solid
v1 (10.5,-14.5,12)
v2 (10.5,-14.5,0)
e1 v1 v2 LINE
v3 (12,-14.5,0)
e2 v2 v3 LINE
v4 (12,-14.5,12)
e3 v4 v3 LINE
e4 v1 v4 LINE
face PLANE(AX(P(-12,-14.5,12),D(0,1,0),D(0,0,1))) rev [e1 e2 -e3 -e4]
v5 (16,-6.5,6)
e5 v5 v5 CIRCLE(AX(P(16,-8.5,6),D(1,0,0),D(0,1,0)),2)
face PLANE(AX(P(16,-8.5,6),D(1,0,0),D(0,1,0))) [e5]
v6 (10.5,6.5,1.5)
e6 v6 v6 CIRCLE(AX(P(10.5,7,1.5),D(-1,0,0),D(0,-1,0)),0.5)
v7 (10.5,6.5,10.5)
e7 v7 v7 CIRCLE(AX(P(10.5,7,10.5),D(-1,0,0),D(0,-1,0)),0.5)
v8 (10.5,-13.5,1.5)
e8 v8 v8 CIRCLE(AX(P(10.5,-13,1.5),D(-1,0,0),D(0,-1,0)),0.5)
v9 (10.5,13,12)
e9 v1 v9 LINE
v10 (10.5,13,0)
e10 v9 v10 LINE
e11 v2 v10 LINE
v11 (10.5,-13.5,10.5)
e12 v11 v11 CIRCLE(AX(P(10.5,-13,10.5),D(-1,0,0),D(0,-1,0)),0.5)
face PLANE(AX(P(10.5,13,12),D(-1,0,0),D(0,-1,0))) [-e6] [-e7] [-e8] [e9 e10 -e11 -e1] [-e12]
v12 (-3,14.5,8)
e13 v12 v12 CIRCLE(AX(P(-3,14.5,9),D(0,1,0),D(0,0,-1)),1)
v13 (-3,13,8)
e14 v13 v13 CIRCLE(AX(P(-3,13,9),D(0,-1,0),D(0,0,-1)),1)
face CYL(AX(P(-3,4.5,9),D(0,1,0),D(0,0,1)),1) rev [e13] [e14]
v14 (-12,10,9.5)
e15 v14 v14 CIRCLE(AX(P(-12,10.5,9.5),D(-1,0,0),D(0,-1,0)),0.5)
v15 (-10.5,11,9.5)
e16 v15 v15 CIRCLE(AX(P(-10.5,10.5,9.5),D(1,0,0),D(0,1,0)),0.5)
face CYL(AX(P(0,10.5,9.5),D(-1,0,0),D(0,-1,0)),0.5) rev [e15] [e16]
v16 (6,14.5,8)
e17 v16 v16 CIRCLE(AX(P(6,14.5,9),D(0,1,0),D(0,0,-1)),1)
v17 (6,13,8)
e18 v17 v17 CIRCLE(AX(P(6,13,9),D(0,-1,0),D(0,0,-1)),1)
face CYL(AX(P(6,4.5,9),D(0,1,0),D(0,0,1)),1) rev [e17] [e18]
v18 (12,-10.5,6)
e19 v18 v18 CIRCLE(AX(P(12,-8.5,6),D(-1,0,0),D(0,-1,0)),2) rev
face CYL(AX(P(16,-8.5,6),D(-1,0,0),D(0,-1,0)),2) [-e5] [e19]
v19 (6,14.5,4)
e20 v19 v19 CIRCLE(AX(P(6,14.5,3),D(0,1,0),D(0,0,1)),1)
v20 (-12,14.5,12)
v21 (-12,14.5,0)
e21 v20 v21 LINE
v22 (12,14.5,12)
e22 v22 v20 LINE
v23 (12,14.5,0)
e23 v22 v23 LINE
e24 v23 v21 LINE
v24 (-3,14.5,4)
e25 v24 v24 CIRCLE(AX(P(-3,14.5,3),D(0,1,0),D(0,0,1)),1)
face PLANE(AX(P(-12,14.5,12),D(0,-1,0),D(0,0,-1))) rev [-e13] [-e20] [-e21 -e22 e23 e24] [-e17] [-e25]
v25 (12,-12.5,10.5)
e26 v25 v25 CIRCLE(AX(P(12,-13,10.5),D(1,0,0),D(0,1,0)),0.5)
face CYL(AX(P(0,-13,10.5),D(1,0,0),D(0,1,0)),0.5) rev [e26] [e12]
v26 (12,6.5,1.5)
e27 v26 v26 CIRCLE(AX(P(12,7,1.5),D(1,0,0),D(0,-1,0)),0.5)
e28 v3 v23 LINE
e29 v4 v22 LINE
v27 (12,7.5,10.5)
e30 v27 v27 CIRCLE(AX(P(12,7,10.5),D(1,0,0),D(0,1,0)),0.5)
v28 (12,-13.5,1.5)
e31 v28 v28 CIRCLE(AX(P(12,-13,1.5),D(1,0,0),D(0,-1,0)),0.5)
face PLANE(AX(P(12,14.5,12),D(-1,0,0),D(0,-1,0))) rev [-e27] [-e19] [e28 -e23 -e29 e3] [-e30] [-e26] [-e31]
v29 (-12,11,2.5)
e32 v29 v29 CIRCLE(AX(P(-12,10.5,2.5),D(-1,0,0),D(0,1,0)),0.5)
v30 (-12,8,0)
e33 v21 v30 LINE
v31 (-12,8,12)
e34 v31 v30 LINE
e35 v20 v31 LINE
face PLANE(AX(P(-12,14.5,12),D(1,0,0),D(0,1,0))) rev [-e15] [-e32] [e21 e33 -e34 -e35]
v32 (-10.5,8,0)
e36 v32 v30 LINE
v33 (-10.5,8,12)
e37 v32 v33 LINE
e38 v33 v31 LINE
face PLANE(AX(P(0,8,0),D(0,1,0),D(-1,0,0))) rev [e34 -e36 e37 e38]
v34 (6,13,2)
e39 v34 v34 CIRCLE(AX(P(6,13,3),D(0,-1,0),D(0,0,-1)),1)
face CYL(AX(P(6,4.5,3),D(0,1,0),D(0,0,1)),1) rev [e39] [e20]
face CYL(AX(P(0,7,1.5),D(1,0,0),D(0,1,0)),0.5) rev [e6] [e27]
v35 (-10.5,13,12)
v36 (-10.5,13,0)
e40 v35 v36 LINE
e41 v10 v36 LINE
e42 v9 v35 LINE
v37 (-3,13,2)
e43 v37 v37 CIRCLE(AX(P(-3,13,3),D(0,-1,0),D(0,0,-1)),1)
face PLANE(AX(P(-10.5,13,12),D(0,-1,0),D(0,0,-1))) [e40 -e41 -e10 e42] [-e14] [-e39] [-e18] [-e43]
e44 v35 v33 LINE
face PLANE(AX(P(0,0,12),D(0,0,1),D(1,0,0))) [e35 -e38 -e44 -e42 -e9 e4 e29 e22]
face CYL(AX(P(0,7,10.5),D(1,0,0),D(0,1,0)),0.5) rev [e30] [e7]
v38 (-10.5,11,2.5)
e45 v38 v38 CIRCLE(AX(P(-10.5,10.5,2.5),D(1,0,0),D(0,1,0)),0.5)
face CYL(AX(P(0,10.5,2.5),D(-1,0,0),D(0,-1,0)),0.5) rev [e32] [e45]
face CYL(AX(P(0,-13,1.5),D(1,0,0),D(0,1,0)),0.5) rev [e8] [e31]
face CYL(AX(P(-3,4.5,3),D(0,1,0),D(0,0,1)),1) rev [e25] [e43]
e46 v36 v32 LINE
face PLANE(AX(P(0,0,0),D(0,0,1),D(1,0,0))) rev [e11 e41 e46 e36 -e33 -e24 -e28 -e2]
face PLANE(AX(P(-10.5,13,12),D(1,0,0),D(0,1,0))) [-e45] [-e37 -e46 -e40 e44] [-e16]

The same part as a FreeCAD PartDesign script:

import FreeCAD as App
import Part
import Sketcher
from FreeCAD import Vector
Q = App.Units.Quantity

doc = App.newDocument("Part")
body = doc.addObject("PartDesign::Body", "Body")

sketch1 = body.newObject("Sketcher::SketchObject", "Sketch")
sketch1.AttachmentSupport = (doc.getObject("XY_Plane"), [""])
sketch1.MapMode = "FlatFace"
sketch1.addGeometry([
    Part.LineSegment(Vector(-12, 14, 0), Vector(-12, -14, 0)),
    Part.LineSegment(Vector(-12, -14, 0), Vector(12, -14, 0)),
    Part.LineSegment(Vector(12, -14, 0), Vector(12, 14, 0)),
    Part.LineSegment(Vector(12, 14, 0), Vector(-12, 14, 0)),
    Part.LineSegment(Vector(10, -13, 0), Vector(-10, -13, 0)),
    Part.LineSegment(Vector(-10, -13, 0), Vector(-10, 13, 0)),
    Part.LineSegment(Vector(-10, 13, 0), Vector(10, 13, 0)),
    Part.LineSegment(Vector(10, 13, 0), Vector(10, -13, 0)),
], False)
sketch1.addConstraint([
    Sketcher.Constraint("Coincident", 0, 2, 1, 1),
    Sketcher.Constraint("Coincident", 1, 2, 2, 1),
    Sketcher.Constraint("Coincident", 2, 2, 3, 1),
    Sketcher.Constraint("Coincident", 3, 2, 0, 1),
    Sketcher.Constraint("Coincident", 4, 2, 5, 1),
    Sketcher.Constraint("Coincident", 5, 2, 6, 1),
    Sketcher.Constraint("Coincident", 6, 2, 7, 1),
    Sketcher.Constraint("Coincident", 7, 2, 4, 1),
    Sketcher.Constraint("Vertical", 0),
    Sketcher.Constraint("Horizontal", 1),
    Sketcher.Constraint("Vertical", 2),
    Sketcher.Constraint("Horizontal", 3),
    Sketcher.Constraint("Horizontal", 4),
    Sketcher.Constraint("Vertical", 5),
    Sketcher.Constraint("Horizontal", 6),
    Sketcher.Constraint("Vertical", 7),
    Sketcher.Constraint("Symmetric", 0, 2, 2, 2, -1, 1),
    Sketcher.Constraint("Symmetric", 4, 2, 6, 2, -1, 1),
    Sketcher.Constraint("DistanceX", 1, 1, 1, 2, Q("24 mm")),
    Sketcher.Constraint("DistanceX", 4, 2, 4, 1, Q("21 mm")),
    Sketcher.Constraint("DistanceY", 0, 2, 0, 1, Q("29 mm")),
    Sketcher.Constraint("DistanceY", 5, 1, 5, 2, Q("26 mm")),
])
pad1 = body.newObject("PartDesign::Pad", "Pad")
pad1.Profile = sketch1
pad1.Length = 12

sketch2 = body.newObject("Sketcher::SketchObject", "Sketch001")
sketch2.AttachmentSupport = (doc.getObject("XZ_Plane"), [""])
sketch2.MapMode = "FlatFace"
sketch2.AttachmentOffset = App.Placement(Vector(0, 0, 13), App.Rotation())
sketch2.addGeometry([
    Part.LineSegment(Vector(-10, 0, 0), Vector(-10, 12, 0)),
    Part.LineSegment(Vector(-10, 12, 0), Vector(10, 12, 0)),
    Part.LineSegment(Vector(10, 12, 0), Vector(10, 0, 0)),
    Part.LineSegment(Vector(10, 0, 0), Vector(-10, 0, 0)),
], False)
sketch2.addConstraint([
    Sketcher.Constraint("Coincident", 0, 2, 1, 1),
    Sketcher.Constraint("Coincident", 1, 2, 2, 1),
    Sketcher.Constraint("Coincident", 2, 2, 3, 1),
    Sketcher.Constraint("Coincident", 3, 2, 0, 1),
    Sketcher.Constraint("Vertical", 0),
    Sketcher.Constraint("Horizontal", 1),
    Sketcher.Constraint("Vertical", 2),
    Sketcher.Constraint("Horizontal", 3),
    Sketcher.Constraint("Symmetric", 2, 2, 3, 2, -1, 1),
    Sketcher.Constraint("DistanceX", 1, 1, 1, 2, Q("21 mm")),
    Sketcher.Constraint("DistanceY", 0, 1, 0, 2, Q("12 mm")),
])
pocket1 = body.newObject("PartDesign::Pocket", "Pocket")
pocket1.Profile = sketch2
pocket1.Type = "ThroughAll"
pocket1.Reversed = True

sketch3 = body.newObject("Sketcher::SketchObject", "Sketch002")
sketch3.AttachmentSupport = (doc.getObject("YZ_Plane"), [""])
sketch3.MapMode = "FlatFace"
sketch3.AttachmentOffset = App.Placement(Vector(0, 0, -12), App.Rotation())
sketch3.addGeometry([
    Part.LineSegment(Vector(8, 0, 0), Vector(-14, 0, 0)),
    Part.LineSegment(Vector(-14, 0, 0), Vector(-14, 12, 0)),
    Part.LineSegment(Vector(-14, 12, 0), Vector(8, 12, 0)),
    Part.LineSegment(Vector(8, 12, 0), Vector(8, 0, 0)),
], False)
sketch3.addConstraint([
    Sketcher.Constraint("Coincident", 0, 2, 1, 1),
    Sketcher.Constraint("Coincident", 1, 2, 2, 1),
    Sketcher.Constraint("Coincident", 2, 2, 3, 1),
    Sketcher.Constraint("Coincident", 3, 2, 0, 1),
    Sketcher.Constraint("Horizontal", 0),
    Sketcher.Constraint("Vertical", 1),
    Sketcher.Constraint("Horizontal", 2),
    Sketcher.Constraint("Vertical", 3),
    Sketcher.Constraint("PointOnObject", 0, 2, -1),
    Sketcher.Constraint("DistanceY", 1, 1, 1, 2, Q("12 mm")),
    Sketcher.Constraint("DistanceX", 0, 2, 0, 1, Q("22.5 mm")),
    Sketcher.Constraint("DistanceX", -1, 1, 2, 2, Q("8 mm")),
])
pocket2 = body.newObject("PartDesign::Pocket", "Pocket001")
pocket2.Profile = sketch3
pocket2.Length = 12
pocket2.Reversed = True

sketch4 = body.newObject("Sketcher::SketchObject", "Sketch003")
sketch4.AttachmentSupport = (doc.getObject("YZ_Plane"), [""])
sketch4.MapMode = "FlatFace"
sketch4.AttachmentOffset = App.Placement(Vector(0, 0, 12), App.Rotation())
sketch4.addGeometry([
    Part.Circle(Vector(-13, 10.5, 0), Vector(0, 0, 1), 0.5),
    Part.Circle(Vector(-13, 1.5, 0), Vector(0, 0, 1), 0.5),
    Part.Circle(Vector(7, 10.5, 0), Vector(0, 0, 1), 0.5),
    Part.Circle(Vector(7, 1.5, 0), Vector(0, 0, 1), 0.5),
], False)
sketch4.addConstraint([
    Sketcher.Constraint("Equal", 0, 1),
    Sketcher.Constraint("Equal", 1, 2),
    Sketcher.Constraint("Equal", 2, 3),
    Sketcher.Constraint("Horizontal", 0, 3, 2, 3),
    Sketcher.Constraint("Horizontal", 1, 3, 3, 3),
    Sketcher.Constraint("Vertical", 0, 3, 1, 3),
    Sketcher.Constraint("Vertical", 2, 3, 3, 3),
    Sketcher.Constraint("Diameter", 0, Q("1 mm")),
    Sketcher.Constraint("DistanceX", 0, 3, -1, 1, Q("13 mm")),
    Sketcher.Constraint("DistanceX", -1, 1, 2, 3, Q("7 mm")),
    Sketcher.Constraint("DistanceY", 1, 3, 0, 3, Q("9 mm")),
    Sketcher.Constraint("DistanceY", -1, 1, 0, 3, Q("10.5 mm")),
])
pocket3 = body.newObject("PartDesign::Pocket", "Pocket002")
pocket3.Profile = sketch4
pocket3.Length = 12

sketch5 = body.newObject("Sketcher::SketchObject", "Sketch004")
sketch5.AttachmentSupport = (doc.getObject("YZ_Plane"), [""])
sketch5.MapMode = "FlatFace"
sketch5.AttachmentOffset = App.Placement(Vector(0, 0, -12), App.Rotation())
sketch5.addGeometry([
    Part.Circle(Vector(10.5, 9.5, 0), Vector(0, 0, 1), 0.5),
    Part.Circle(Vector(10.5, 2.5, 0), Vector(0, 0, 1), 0.5),
], False)
sketch5.addConstraint([
    Sketcher.Constraint("Equal", 0, 1),
    Sketcher.Constraint("Vertical", 0, 3, 1, 3),
    Sketcher.Constraint("Diameter", 0, Q("1 mm")),
    Sketcher.Constraint("DistanceY", 1, 3, 0, 3, Q("7 mm")),
    Sketcher.Constraint("DistanceX", -1, 1, 0, 3, Q("10.5 mm")),
    Sketcher.Constraint("DistanceY", -1, 1, 0, 3, Q("9.5 mm")),
])
pocket4 = body.newObject("PartDesign::Pocket", "Pocket003")
pocket4.Profile = sketch5
pocket4.Length = 12
pocket4.Reversed = True

sketch6 = body.newObject("Sketcher::SketchObject", "Sketch005")
sketch6.AttachmentSupport = (doc.getObject("YZ_Plane"), [""])
sketch6.MapMode = "FlatFace"
sketch6.AttachmentOffset = App.Placement(Vector(0, 0, 12), App.Rotation())
sketch6.addGeometry(Part.Circle(Vector(-8.5, 6, 0), Vector(0, 0, 1), 2), False)
sketch6.addConstraint([
    Sketcher.Constraint("Diameter", 0, Q("4 mm")),
    Sketcher.Constraint("DistanceY", -1, 1, 0, 3, Q("6 mm")),
    Sketcher.Constraint("DistanceX", 0, 3, -1, 1, Q("8.5 mm")),
])
pad2 = body.newObject("PartDesign::Pad", "Pad001")
pad2.Profile = sketch6
pad2.Length = 4

sketch7 = body.newObject("Sketcher::SketchObject", "Sketch006")
sketch7.AttachmentSupport = (doc.getObject("XZ_Plane"), [""])
sketch7.MapMode = "FlatFace"
sketch7.AttachmentOffset = App.Placement(Vector(0, 0, -14.5), App.Rotation())
sketch7.addGeometry([
    Part.Circle(Vector(6, 3, 0), Vector(0, 0, 1), 1),
    Part.Circle(Vector(6, 9, 0), Vector(0, 0, 1), 1),
    Part.Circle(Vector(-3, 3, 0), Vector(0, 0, 1), 1),
    Part.Circle(Vector(-3, 9, 0), Vector(0, 0, 1), 1),
], False)
sketch7.addConstraint([
    Sketcher.Constraint("Equal", 0, 1),
    Sketcher.Constraint("Equal", 1, 2),
    Sketcher.Constraint("Equal", 2, 3),
    Sketcher.Constraint("Horizontal", 0, 3, 2, 3),
    Sketcher.Constraint("Horizontal", 1, 3, 3, 3),
    Sketcher.Constraint("Vertical", 0, 3, 1, 3),
    Sketcher.Constraint("Vertical", 2, 3, 3, 3),
    Sketcher.Constraint("Diameter", 0, Q("2 mm")),
    Sketcher.Constraint("DistanceX", -1, 1, 0, 3, Q("6 mm")),
    Sketcher.Constraint("DistanceY", -1, 1, 0, 3, Q("3 mm")),
    Sketcher.Constraint("DistanceY", -1, 1, 1, 3, Q("9 mm")),
    Sketcher.Constraint("DistanceX", 2, 3, -1, 1, Q("3 mm")),
])
pocket5 = body.newObject("PartDesign::Pocket", "Pocket004")
pocket5.Profile = sketch7
pocket5.Length = 10
pocket5.Reversed = True

doc.recompute()
